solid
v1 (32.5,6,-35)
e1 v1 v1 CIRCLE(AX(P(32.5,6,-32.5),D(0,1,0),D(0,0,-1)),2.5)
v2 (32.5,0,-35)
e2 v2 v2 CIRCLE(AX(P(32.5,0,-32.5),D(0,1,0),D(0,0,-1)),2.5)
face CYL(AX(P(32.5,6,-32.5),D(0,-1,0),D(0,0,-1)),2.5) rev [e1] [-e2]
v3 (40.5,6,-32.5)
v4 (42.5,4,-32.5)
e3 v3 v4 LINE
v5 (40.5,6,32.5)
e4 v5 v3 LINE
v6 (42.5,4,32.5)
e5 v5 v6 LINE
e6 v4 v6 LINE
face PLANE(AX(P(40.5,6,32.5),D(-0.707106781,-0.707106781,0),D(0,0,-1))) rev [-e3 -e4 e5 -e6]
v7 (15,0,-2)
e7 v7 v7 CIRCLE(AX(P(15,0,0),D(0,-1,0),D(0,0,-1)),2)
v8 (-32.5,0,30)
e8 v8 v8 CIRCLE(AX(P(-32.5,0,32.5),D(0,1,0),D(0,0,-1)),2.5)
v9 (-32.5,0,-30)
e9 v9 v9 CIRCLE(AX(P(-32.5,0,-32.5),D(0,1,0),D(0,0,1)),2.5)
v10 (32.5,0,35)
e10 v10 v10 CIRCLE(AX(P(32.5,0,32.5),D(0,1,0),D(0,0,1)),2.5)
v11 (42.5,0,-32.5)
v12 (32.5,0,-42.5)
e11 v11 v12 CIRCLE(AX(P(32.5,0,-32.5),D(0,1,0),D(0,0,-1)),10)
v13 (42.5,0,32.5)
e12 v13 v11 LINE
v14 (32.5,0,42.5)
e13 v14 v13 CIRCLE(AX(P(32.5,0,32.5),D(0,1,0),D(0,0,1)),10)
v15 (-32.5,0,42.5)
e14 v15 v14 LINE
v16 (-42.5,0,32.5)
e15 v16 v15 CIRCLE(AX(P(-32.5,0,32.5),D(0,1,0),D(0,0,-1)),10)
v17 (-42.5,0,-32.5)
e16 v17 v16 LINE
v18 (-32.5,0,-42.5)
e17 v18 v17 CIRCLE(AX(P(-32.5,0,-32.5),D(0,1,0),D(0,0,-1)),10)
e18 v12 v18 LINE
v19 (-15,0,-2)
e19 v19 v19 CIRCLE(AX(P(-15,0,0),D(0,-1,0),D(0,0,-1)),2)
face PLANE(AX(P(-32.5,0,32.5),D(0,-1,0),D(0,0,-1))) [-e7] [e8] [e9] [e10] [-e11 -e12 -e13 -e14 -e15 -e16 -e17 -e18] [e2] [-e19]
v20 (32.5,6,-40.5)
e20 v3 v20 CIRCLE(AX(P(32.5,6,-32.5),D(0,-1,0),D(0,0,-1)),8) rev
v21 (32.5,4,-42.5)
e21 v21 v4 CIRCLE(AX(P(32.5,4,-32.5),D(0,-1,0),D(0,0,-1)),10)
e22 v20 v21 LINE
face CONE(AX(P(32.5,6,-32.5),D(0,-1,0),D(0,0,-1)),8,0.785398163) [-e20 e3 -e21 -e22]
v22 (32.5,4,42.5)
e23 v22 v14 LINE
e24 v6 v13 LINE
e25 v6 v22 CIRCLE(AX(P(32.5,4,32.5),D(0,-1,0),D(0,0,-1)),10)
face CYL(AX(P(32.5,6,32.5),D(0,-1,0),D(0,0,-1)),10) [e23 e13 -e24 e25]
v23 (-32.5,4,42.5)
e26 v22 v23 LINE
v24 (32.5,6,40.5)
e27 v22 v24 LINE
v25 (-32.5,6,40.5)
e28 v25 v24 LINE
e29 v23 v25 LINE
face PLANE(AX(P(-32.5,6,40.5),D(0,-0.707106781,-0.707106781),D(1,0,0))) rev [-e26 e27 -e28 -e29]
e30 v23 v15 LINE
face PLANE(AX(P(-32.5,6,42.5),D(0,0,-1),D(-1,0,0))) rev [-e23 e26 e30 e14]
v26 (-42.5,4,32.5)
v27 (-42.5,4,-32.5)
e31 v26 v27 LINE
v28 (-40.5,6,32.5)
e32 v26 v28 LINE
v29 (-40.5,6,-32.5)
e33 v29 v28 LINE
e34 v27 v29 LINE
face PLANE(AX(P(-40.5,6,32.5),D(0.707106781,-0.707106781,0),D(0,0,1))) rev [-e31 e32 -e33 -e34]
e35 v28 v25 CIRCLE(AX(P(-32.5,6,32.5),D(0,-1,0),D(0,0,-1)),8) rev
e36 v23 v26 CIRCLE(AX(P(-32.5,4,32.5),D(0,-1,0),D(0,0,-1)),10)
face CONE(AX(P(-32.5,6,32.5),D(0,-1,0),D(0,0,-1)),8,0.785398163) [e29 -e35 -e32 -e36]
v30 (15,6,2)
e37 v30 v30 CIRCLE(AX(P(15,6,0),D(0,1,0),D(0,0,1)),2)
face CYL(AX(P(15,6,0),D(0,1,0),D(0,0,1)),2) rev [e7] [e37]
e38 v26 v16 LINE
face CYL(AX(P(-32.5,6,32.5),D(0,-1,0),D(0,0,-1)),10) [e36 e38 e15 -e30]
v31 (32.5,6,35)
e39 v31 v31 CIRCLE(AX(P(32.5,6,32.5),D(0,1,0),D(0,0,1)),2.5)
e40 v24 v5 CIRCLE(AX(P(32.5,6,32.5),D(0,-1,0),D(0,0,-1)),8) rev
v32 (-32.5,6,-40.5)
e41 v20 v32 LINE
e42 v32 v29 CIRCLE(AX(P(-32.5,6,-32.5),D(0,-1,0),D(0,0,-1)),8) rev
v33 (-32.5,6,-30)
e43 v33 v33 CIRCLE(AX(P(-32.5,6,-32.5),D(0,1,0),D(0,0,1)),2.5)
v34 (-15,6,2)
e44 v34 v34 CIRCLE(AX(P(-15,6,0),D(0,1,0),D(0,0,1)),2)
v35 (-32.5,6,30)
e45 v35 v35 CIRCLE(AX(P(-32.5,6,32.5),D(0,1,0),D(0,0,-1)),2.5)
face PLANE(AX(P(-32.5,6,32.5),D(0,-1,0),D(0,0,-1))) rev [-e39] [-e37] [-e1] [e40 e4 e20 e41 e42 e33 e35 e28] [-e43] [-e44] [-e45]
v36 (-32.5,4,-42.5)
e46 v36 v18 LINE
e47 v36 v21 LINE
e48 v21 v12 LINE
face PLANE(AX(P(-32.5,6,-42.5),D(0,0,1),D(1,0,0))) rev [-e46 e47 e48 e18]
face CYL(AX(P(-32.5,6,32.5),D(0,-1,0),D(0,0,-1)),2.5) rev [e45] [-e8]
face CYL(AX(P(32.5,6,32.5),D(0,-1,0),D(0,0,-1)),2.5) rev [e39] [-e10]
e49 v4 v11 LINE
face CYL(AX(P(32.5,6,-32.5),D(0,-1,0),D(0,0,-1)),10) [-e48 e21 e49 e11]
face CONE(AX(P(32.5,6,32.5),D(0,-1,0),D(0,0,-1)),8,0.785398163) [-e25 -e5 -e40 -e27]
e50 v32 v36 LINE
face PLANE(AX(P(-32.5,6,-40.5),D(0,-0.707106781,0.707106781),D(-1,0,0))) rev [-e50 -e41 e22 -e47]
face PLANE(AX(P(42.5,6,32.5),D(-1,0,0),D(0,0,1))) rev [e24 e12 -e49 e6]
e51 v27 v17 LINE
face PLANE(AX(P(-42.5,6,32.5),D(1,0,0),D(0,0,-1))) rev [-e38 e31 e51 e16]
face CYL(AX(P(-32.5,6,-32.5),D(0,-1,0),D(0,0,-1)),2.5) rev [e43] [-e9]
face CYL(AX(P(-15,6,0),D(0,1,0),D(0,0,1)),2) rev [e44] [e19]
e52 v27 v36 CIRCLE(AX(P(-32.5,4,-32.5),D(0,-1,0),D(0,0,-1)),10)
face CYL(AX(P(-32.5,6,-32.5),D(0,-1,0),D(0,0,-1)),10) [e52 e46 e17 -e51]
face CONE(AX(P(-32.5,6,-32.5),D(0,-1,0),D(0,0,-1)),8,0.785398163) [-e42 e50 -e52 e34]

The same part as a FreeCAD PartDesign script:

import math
import FreeCAD as App
import Part
import Sketcher

V = App.Vector
Q = App.Units.Quantity


def edges_at(feature, points):
    """Names of the edges that pass closest to the given points."""
    edges = feature.Shape.Edges
    near = lambda p: min(range(len(edges)), key=lambda i: edges[i].distToShape(Part.Vertex(*p))[0])
    return sorted({f"Edge{near(p) + 1}" for p in points})

doc = App.newDocument("Part")
body = doc.addObject("PartDesign::Body", "Body")

sketch1 = doc.addObject("Sketcher::SketchObject", "Sketch")
body.addObject(sketch1)
sketch1.AttachmentSupport = (doc.XZ_Plane, [""])
sketch1.MapMode = "FlatFace"
sketch1.addGeometry(Part.LineSegment(V(-32.5, 42.5, 0), V(32.5, 42.5, 0)), False)
sketch1.addGeometry(Part.ArcOfCircle(Part.Circle(V(32.5, 32.5, 0), V(0, 0, 1), 10), math.radians(0), math.radians(90)), False)
sketch1.addGeometry(Part.LineSegment(V(42.5, 32.5, 0), V(42.5, -32.5, 0)), False)
sketch1.addGeometry(Part.ArcOfCircle(Part.Circle(V(32.5, -32.5, 0), V(0, 0, 1), 10), math.radians(-90), math.radians(0)), False)
sketch1.addGeometry(Part.LineSegment(V(32.5, -42.5, 0), V(-32.5, -42.5, 0)), False)
sketch1.addGeometry(Part.ArcOfCircle(Part.Circle(V(-32.5, -32.5, 0), V(0, 0, 1), 10), math.radians(180), math.radians(270)), False)
sketch1.addGeometry(Part.LineSegment(V(-42.5, -32.5, 0), V(-42.5, 32.5, 0)), False)
sketch1.addGeometry(Part.ArcOfCircle(Part.Circle(V(-32.5, 32.5, 0), V(0, 0, 1), 10), math.radians(90), math.radians(180)), False)
sketch1.addGeometry(Part.Circle(V(-32.5, 32.5, 0), V(0, 0, 1), 2.5), False)
sketch1.addGeometry(Part.Circle(V(32.5, 32.5, 0), V(0, 0, 1), 2.5), False)
sketch1.addGeometry(Part.Circle(V(-32.5, -32.5, 0), V(0, 0, 1), 2.5), False)
sketch1.addGeometry(Part.Circle(V(32.5, -32.5, 0), V(0, 0, 1), 2.5), False)
sketch1.addConstraint(Sketcher.Constraint("Tangent", 0, 2, 1, 2))
sketch1.addConstraint(Sketcher.Constraint("Tangent", 1, 1, 2, 1))
sketch1.addConstraint(Sketcher.Constraint("Tangent", 2, 2, 3, 2))
sketch1.addConstraint(Sketcher.Constraint("Tangent", 3, 1, 4, 1))
sketch1.addConstraint(Sketcher.Constraint("Tangent", 4, 2, 5, 2))
sketch1.addConstraint(Sketcher.Constraint("Tangent", 5, 1, 6, 1))
sketch1.addConstraint(Sketcher.Constraint("Tangent", 6, 2, 7, 2))
sketch1.addConstraint(Sketcher.Constraint("Tangent", 7, 1, 0, 1))
sketch1.addConstraint(Sketcher.Constraint("Horizontal", 0))
sketch1.addConstraint(Sketcher.Constraint("Vertical", 2))
sketch1.addConstraint(Sketcher.Constraint("Horizontal", 4))
sketch1.addConstraint(Sketcher.Constraint("Vertical", 6))
sketch1.addConstraint(Sketcher.Constraint("Coincident", 8, 3, 7, 3))
sketch1.addConstraint(Sketcher.Constraint("Coincident", 9, 3, 1, 3))
sketch1.addConstraint(Sketcher.Constraint("Coincident", 10, 3, 5, 3))
sketch1.addConstraint(Sketcher.Constraint("Coincident", 11, 3, 3, 3))
sketch1.addConstraint(Sketcher.Constraint("Equal", 1, 3))
sketch1.addConstraint(Sketcher.Constraint("Equal", 3, 5))
sketch1.addConstraint(Sketcher.Constraint("Equal", 5, 7))
sketch1.addConstraint(Sketcher.Constraint("Equal", 8, 9))
sketch1.addConstraint(Sketcher.Constraint("Equal", 9, 10))
sketch1.addConstraint(Sketcher.Constraint("Equal", 10, 11))
sketch1.addConstraint(Sketcher.Constraint("Symmetric", 1, 3, 5, 3, -1, 1))
sketch1.addConstraint(Sketcher.Constraint("Equal", 4, 2))
sketch1.addConstraint(Sketcher.Constraint("Diameter", 8, Q("5 mm")))
sketch1.addConstraint(Sketcher.Constraint("Radius", 1, Q("10 mm")))
sketch1.addConstraint(Sketcher.Constraint("DistanceX", 0, 1, 0, 2, Q("65 mm")))
pad1 = doc.addObject("PartDesign::Pad", "Pad")
body.addObject(pad1)
pad1.Profile = sketch1
pad1.Length = 6
pad1.Reversed = True
doc.recompute()

chamfer = doc.addObject("PartDesign::Chamfer", "Chamfer")
body.addObject(chamfer)
chamfer.Base = (pad1, edges_at(pad1, [
    (39.571, 6, -39.571),
    (42.5, 6, 0),
    (39.571, 6, 39.571),
    (0, 6, 42.5),
    (-39.571, 6, 39.571),
]))
chamfer.Size = 2

sketch2 = doc.addObject("Sketcher::SketchObject", "Sketch001")
body.addObject(sketch2)
sketch2.AttachmentSupport = (doc.XZ_Plane, [""])
sketch2.MapMode = "FlatFace"
sketch2.AttachmentOffset = App.Placement(V(0, 0, -6), App.Rotation())
sketch2.addGeometry(Part.Circle(V(-15, 0, 0), V(0, 0, 1), 2), False)
sketch2.addGeometry(Part.Circle(V(15, 0, 0), V(0, 0, 1), 2), False)
sketch2.addConstraint(Sketcher.Constraint("Equal", 0, 1))
sketch2.addConstraint(Sketcher.Constraint("Symmetric", 0, 3, 1, 3, -1, 1))
sketch2.addConstraint(Sketcher.Constraint("PointOnObject", 0, 3, -1))
sketch2.addConstraint(Sketcher.Constraint("Diameter", 0, Q("4 mm")))
sketch2.addConstraint(Sketcher.Constraint("DistanceX", 0, 3, -1, 1, Q("15 mm")))
doc.recompute()
hole = doc.addObject("PartDesign::Hole", "Hole")
body.addObject(hole)
hole.Profile = sketch2
hole.ThreadType = "None"
hole.Diameter = 4
hole.DepthType = "Dimension"
hole.Depth = 8.898279
hole.DrillPoint = "Angled"
hole.DrillPointAngle = 118
hole.Reversed = True

doc.recompute()
